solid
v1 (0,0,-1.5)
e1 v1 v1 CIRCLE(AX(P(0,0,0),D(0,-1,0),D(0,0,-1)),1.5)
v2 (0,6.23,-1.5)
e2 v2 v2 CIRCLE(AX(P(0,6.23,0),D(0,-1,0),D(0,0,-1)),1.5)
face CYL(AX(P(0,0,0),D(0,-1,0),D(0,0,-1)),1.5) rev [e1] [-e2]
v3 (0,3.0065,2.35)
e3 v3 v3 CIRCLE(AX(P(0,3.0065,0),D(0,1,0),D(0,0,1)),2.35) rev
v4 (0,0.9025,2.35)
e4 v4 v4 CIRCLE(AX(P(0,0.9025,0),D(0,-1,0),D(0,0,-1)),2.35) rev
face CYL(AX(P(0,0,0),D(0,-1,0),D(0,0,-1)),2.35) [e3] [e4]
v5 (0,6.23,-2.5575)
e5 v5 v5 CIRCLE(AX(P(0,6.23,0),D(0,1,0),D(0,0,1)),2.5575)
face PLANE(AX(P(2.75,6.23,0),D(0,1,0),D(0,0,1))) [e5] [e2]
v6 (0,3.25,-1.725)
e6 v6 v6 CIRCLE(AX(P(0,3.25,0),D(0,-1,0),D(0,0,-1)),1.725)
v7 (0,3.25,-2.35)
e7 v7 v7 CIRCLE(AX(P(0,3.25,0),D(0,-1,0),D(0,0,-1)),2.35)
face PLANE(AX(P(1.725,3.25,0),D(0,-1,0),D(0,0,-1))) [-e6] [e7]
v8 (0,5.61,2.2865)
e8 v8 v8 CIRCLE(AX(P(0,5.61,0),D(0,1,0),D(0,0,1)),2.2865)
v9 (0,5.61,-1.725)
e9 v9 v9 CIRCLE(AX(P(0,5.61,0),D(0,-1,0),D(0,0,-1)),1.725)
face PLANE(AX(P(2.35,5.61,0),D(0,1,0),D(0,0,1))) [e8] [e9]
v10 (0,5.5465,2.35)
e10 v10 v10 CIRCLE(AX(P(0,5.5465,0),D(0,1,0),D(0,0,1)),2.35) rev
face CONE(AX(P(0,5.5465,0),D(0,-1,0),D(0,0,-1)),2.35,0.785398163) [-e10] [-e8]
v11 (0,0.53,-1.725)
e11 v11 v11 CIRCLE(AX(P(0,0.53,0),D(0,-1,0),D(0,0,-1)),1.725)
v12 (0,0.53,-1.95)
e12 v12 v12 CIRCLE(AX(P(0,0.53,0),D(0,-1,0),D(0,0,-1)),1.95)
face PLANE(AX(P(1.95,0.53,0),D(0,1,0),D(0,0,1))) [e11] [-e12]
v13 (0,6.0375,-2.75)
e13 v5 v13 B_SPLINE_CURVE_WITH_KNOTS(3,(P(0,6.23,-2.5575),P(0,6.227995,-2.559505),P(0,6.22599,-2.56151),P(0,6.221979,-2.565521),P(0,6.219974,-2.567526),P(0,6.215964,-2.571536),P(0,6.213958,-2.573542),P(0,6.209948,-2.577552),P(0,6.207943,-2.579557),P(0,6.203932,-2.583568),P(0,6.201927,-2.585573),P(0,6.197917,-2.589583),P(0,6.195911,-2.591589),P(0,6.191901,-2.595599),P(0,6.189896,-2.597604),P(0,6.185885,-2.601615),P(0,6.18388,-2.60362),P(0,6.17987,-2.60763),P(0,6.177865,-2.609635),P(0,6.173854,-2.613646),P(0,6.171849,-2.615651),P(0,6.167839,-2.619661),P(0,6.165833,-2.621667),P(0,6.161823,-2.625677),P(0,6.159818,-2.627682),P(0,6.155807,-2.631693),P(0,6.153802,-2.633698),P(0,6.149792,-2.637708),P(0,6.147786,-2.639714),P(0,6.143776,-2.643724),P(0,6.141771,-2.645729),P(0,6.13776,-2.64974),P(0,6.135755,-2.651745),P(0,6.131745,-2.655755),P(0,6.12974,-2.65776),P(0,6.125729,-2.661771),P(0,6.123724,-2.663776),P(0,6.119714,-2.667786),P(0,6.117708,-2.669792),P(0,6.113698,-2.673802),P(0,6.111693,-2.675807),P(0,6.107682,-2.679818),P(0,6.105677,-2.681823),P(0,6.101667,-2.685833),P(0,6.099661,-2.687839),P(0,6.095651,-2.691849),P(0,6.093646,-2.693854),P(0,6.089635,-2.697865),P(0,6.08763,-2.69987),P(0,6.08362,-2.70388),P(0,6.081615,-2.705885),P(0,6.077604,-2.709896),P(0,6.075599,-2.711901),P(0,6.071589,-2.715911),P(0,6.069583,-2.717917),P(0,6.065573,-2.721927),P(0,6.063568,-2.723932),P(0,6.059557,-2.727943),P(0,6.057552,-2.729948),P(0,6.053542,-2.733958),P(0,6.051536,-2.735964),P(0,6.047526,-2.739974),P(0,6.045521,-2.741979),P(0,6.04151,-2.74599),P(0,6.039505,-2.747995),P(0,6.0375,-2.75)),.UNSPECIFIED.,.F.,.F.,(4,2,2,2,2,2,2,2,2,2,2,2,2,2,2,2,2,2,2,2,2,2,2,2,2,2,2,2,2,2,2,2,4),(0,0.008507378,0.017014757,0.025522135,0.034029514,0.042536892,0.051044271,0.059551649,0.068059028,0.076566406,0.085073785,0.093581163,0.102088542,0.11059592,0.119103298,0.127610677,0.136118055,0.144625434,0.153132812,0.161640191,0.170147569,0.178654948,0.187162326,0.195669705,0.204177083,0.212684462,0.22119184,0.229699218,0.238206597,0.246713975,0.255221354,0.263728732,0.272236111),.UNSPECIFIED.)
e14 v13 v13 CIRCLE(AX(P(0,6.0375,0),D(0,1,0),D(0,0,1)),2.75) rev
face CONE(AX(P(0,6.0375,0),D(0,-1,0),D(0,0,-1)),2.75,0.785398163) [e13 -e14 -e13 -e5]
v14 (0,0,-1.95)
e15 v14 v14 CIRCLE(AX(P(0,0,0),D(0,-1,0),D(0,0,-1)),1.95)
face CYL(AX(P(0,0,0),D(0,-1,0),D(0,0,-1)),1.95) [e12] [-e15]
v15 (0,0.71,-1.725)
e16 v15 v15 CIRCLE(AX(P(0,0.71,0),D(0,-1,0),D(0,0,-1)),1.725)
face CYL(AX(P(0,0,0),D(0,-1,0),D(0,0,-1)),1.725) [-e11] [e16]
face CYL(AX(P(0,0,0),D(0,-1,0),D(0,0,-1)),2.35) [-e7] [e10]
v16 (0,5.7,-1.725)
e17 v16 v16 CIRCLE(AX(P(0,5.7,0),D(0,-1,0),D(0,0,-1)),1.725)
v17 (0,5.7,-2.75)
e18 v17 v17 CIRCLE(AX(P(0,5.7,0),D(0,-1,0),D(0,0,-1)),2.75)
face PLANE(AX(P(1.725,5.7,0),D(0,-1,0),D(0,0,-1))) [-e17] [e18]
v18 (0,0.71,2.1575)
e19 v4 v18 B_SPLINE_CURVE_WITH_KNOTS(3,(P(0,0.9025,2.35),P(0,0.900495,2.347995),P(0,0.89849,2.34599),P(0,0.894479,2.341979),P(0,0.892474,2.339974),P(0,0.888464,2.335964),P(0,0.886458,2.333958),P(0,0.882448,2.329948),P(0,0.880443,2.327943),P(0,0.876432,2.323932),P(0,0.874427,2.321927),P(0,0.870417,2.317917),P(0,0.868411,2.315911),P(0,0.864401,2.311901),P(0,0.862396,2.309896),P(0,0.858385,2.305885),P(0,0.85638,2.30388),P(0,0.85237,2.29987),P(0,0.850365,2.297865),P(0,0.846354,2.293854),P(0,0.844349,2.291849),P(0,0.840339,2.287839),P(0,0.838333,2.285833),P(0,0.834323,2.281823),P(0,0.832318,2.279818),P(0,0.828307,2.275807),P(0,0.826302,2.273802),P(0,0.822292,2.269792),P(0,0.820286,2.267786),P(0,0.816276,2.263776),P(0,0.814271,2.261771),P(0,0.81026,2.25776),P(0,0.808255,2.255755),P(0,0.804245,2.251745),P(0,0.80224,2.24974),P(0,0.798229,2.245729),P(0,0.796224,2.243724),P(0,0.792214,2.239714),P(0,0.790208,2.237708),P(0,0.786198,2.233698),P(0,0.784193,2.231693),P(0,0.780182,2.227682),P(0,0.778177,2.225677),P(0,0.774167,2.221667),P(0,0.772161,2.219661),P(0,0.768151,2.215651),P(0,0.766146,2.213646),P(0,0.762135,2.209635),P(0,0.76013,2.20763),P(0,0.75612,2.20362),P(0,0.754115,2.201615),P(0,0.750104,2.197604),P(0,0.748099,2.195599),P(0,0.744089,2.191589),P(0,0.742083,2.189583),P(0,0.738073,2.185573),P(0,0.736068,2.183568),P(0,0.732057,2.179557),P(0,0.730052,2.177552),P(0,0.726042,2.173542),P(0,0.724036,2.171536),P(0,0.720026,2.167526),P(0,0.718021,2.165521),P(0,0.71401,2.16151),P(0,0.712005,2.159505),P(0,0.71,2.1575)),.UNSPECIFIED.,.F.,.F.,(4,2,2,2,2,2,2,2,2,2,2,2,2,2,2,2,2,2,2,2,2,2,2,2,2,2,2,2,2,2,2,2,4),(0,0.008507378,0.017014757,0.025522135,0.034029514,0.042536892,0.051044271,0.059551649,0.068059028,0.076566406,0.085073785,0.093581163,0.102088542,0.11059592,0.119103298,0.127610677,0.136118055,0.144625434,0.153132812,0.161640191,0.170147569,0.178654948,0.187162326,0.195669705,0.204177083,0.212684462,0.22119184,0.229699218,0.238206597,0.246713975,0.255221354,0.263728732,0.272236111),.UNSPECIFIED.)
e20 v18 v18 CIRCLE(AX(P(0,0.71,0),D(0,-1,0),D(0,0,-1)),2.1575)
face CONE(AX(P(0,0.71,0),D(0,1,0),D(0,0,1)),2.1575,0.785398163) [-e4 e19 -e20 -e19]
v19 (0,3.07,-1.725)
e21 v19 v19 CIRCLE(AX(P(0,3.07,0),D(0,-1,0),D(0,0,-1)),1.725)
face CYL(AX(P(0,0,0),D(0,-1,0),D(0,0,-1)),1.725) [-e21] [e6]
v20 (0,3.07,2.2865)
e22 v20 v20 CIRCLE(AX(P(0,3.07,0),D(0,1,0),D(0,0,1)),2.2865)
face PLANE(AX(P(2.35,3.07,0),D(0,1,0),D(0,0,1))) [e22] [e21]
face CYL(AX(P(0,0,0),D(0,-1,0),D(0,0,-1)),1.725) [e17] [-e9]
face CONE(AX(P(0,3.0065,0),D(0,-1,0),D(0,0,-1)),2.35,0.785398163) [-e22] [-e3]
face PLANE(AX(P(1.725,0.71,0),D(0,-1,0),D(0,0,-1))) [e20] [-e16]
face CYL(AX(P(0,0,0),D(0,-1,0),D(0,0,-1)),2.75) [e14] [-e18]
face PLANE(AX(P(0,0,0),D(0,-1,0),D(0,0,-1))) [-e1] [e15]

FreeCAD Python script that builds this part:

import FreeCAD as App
import Part
import Sketcher
from FreeCAD import Vector
Q = App.Units.Quantity


def edges_at(feature, points):
    """Names of the edges that pass closest to the given points."""
    edges = feature.Shape.Edges
    near = lambda p: min(range(len(edges)), key=lambda i: edges[i].distToShape(Part.Vertex(*p))[0])
    return sorted({f"Edge{near(p) + 1}" for p in points})


def add_polygon(sketch, points):
    """Adds a closed chain of lines whose ends are joined by coincident constraints."""
    first, n = sketch.GeometryCount, len(points)
    for a, b in zip(points, points[1:] + points[:1]):
        sketch.addGeometry(Part.LineSegment(App.Vector(*a, 0), App.Vector(*b, 0)), False)
    for i in range(n):
        sketch.addConstraint(Sketcher.Constraint("Coincident", first + i, 2, first + (i + 1) % n, 1))

doc = App.newDocument("Part")
body = doc.addObject("PartDesign::Body", "Body")

# Sketch on XY plane
sketch1 = body.newObject("Sketcher::SketchObject", "Sketch")
sketch1.AttachmentSupport = (doc.getObject("XY_Plane"), [""])
sketch1.MapMode = "FlatFace"
add_polygon(sketch1, [(0, 0), (1.95, 0), (1.95, 0.53), (1.725, 0.53), (1.725, 0.71), (2.35, 0.71), (2.35, 3.07), (1.725, 3.07), (1.725, 3.25), (2.35, 3.25), (2.35, 5.61), (1.725, 5.61), (1.725, 5.7), (2.75, 5.7), (2.75, 6.23), (0, 6.23)])  # lines 0-15
sketch1.addConstraint(Sketcher.Constraint("Horizontal", 0))
sketch1.addConstraint(Sketcher.Constraint("Vertical", 1))
sketch1.addConstraint(Sketcher.Constraint("Horizontal", 2))
sketch1.addConstraint(Sketcher.Constraint("Vertical", 3))
sketch1.addConstraint(Sketcher.Constraint("Horizontal", 4))
sketch1.addConstraint(Sketcher.Constraint("Vertical", 5))
sketch1.addConstraint(Sketcher.Constraint("Horizontal", 6))
sketch1.addConstraint(Sketcher.Constraint("Vertical", 7))
sketch1.addConstraint(Sketcher.Constraint("Horizontal", 8))
sketch1.addConstraint(Sketcher.Constraint("Vertical", 9))
sketch1.addConstraint(Sketcher.Constraint("Horizontal", 10))
sketch1.addConstraint(Sketcher.Constraint("Vertical", 11))
sketch1.addConstraint(Sketcher.Constraint("Horizontal", 12))
sketch1.addConstraint(Sketcher.Constraint("Vertical", 13))
sketch1.addConstraint(Sketcher.Constraint("Horizontal", 14))
sketch1.addConstraint(Sketcher.Constraint("Vertical", 15))
sketch1.addConstraint(Sketcher.Constraint("Coincident", 15, 2, -1, 1))
sketch1.addConstraint(Sketcher.Constraint("Vertical", 3, 2, 6, 2))
sketch1.addConstraint(Sketcher.Constraint("Vertical", 5, 2, 8, 2))
sketch1.addConstraint(Sketcher.Constraint("Vertical", 7, 2, 10, 2))
sketch1.addConstraint(Sketcher.Constraint("Equal", 3, 7))
sketch1.addConstraint(Sketcher.Constraint("Equal", 5, 9))
sketch1.addConstraint(Sketcher.Constraint("Equal", 1, 13))
sketch1.addConstraint(Sketcher.Constraint("DistanceX", 0, 1, 0, 2, Q("1.95 mm")))
sketch1.addConstraint(Sketcher.Constraint("DistanceX", 14, 2, 14, 1, Q("2.75 mm")))
sketch1.addConstraint(Sketcher.Constraint("DistanceY", 1, 1, 1, 2, Q("0.53 mm")))
sketch1.addConstraint(Sketcher.Constraint("DistanceY", 3, 1, 3, 2, Q("0.18 mm")))
sketch1.addConstraint(Sketcher.Constraint("DistanceY", 5, 1, 5, 2, Q("2.36 mm")))
sketch1.addConstraint(Sketcher.Constraint("DistanceY", 11, 1, 11, 2, Q("0.09 mm")))
sketch1.addConstraint(Sketcher.Constraint("DistanceX", 1, 2, 4, 2, Q("0.4 mm")))
sketch1.addConstraint(Sketcher.Constraint("DistanceX", 2, 2, 2, 1, Q("0.225 mm")))
revolution = body.newObject("PartDesign::Revolution", "Revolution")
revolution.Profile = sketch1
revolution.ReferenceAxis = (sketch1, ["V_Axis"])
revolution.Angle = 360

# Sketch on XY plane
sketch2 = body.newObject("Sketcher::SketchObject", "Sketch001")
sketch2.AttachmentSupport = (doc.getObject("XY_Plane"), [""])
sketch2.MapMode = "FlatFace"
add_polygon(sketch2, [(0, 6.23), (0, 0), (1.5, 0), (1.5, 6.23)])  # lines 0-3
sketch2.addConstraint(Sketcher.Constraint("Vertical", 0))
sketch2.addConstraint(Sketcher.Constraint("Horizontal", 1))
sketch2.addConstraint(Sketcher.Constraint("Vertical", 2))
sketch2.addConstraint(Sketcher.Constraint("Horizontal", 3))
sketch2.addConstraint(Sketcher.Constraint("Coincident", 0, 2, -1, 1))
sketch2.addConstraint(Sketcher.Constraint("DistanceX", 1, 1, 1, 2, Q("1.5 mm")))
sketch2.addConstraint(Sketcher.Constraint("DistanceY", 0, 2, 0, 1, Q("6.23 mm")))
groove = body.newObject("PartDesign::Groove", "Groove")
groove.Profile = sketch2
groove.ReferenceAxis = (sketch2, ["V_Axis"])
groove.Angle = 360
doc.recompute()

chamfer = body.newObject("PartDesign::Chamfer", "Chamfer")
chamfer.Base = (groove, edges_at(groove, [(0, 5.61, 2.35), (0, 3.07, 2.35)]))
chamfer.Size = 0.0635
doc.recompute()

chamfer2 = body.newObject("PartDesign::Chamfer", "Chamfer001")
chamfer2.Base = (chamfer, edges_at(chamfer, [(0, 6.23, 2.75), (0, 0.71, 2.35)]))
chamfer2.Size = 0.1925

doc.recompute()
